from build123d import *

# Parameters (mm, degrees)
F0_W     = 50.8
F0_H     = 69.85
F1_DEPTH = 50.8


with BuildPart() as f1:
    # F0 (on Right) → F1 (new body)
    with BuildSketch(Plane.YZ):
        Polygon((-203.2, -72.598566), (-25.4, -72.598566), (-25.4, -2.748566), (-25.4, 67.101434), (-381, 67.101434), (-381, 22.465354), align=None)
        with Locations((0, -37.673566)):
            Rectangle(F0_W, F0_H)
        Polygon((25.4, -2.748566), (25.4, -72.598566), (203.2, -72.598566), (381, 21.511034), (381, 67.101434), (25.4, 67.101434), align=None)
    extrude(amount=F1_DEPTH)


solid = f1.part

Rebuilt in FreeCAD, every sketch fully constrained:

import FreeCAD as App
import Part
import Sketcher
from FreeCAD import Vector
Q = App.Units.Quantity


def add_polygon(sketch, points):
    """Adds a closed chain of lines whose ends are joined by coincident constraints."""
    first, n = sketch.GeometryCount, len(points)
    for a, b in zip(points, points[1:] + points[:1]):
        sketch.addGeometry(Part.LineSegment(App.Vector(*a, 0), App.Vector(*b, 0)), False)
    for i in range(n):
        sketch.addConstraint(Sketcher.Constraint("Coincident", first + i, 2, first + (i + 1) % n, 1))

doc = App.newDocument("Part")
body = doc.addObject("PartDesign::Body", "Body")

# Sketch on YZ plane
sketch1 = body.newObject("Sketcher::SketchObject", "Sketch")
sketch1.AttachmentSupport = (doc.getObject("YZ_Plane"), [""])
sketch1.MapMode = "FlatFace"
add_polygon(sketch1, [(-203.2, -72.598566), (203.2, -72.598566), (381, 21.511034), (381, 67.101434), (25.4, 67.101434), (25.4, -2.748566), (-25.4, -2.748566), (-25.4, 67.101434), (-381, 67.101434), (-381, 22.465354)])  # lines 0-9
sketch1.addConstraint([
    Sketcher.Constraint("Horizontal", 0),
    Sketcher.Constraint("Vertical", 2),
    Sketcher.Constraint("Horizontal", 3),
    Sketcher.Constraint("Vertical", 4),
    Sketcher.Constraint("Horizontal", 5),
    Sketcher.Constraint("Vertical", 6),
    Sketcher.Constraint("Horizontal", 7),
    Sketcher.Constraint("Vertical", 8),
    Sketcher.Constraint("Symmetric", 3, 2, 6, 2, -2),
    Sketcher.Constraint("Equal", 3, 7),
    Sketcher.Constraint("DistanceX", 0, 1, 0, 2, Q("16 in")),
    Sketcher.Constraint("DistanceX", 3, 2, 3, 1, Q("14 in")),
    Sketcher.Constraint("DistanceX", 5, 2, 5, 1, Q("2 in")),
    Sketcher.Constraint("DistanceX", -1, 1, 0, 2, Q("8 in")),
    Sketcher.Constraint("DistanceY", 4, 2, 4, 1, Q("2.75 in")),
    Sketcher.Constraint("DistanceY", 0, 2, 2, 2, Q("5.5 in")),
    Sketcher.Constraint("DistanceY", 2, 1, 2, 2, 45.5904),
    Sketcher.Constraint("DistanceY", 8, 2, 8, 1, 44.63608),
    Sketcher.Constraint("DistanceY", 0, 2, -1, 1, 72.598566),
])
pad1 = body.newObject("PartDesign::Pad", "Pad")
pad1.Profile = sketch1
pad1.Length = Q("2 in")

doc.recompute()
